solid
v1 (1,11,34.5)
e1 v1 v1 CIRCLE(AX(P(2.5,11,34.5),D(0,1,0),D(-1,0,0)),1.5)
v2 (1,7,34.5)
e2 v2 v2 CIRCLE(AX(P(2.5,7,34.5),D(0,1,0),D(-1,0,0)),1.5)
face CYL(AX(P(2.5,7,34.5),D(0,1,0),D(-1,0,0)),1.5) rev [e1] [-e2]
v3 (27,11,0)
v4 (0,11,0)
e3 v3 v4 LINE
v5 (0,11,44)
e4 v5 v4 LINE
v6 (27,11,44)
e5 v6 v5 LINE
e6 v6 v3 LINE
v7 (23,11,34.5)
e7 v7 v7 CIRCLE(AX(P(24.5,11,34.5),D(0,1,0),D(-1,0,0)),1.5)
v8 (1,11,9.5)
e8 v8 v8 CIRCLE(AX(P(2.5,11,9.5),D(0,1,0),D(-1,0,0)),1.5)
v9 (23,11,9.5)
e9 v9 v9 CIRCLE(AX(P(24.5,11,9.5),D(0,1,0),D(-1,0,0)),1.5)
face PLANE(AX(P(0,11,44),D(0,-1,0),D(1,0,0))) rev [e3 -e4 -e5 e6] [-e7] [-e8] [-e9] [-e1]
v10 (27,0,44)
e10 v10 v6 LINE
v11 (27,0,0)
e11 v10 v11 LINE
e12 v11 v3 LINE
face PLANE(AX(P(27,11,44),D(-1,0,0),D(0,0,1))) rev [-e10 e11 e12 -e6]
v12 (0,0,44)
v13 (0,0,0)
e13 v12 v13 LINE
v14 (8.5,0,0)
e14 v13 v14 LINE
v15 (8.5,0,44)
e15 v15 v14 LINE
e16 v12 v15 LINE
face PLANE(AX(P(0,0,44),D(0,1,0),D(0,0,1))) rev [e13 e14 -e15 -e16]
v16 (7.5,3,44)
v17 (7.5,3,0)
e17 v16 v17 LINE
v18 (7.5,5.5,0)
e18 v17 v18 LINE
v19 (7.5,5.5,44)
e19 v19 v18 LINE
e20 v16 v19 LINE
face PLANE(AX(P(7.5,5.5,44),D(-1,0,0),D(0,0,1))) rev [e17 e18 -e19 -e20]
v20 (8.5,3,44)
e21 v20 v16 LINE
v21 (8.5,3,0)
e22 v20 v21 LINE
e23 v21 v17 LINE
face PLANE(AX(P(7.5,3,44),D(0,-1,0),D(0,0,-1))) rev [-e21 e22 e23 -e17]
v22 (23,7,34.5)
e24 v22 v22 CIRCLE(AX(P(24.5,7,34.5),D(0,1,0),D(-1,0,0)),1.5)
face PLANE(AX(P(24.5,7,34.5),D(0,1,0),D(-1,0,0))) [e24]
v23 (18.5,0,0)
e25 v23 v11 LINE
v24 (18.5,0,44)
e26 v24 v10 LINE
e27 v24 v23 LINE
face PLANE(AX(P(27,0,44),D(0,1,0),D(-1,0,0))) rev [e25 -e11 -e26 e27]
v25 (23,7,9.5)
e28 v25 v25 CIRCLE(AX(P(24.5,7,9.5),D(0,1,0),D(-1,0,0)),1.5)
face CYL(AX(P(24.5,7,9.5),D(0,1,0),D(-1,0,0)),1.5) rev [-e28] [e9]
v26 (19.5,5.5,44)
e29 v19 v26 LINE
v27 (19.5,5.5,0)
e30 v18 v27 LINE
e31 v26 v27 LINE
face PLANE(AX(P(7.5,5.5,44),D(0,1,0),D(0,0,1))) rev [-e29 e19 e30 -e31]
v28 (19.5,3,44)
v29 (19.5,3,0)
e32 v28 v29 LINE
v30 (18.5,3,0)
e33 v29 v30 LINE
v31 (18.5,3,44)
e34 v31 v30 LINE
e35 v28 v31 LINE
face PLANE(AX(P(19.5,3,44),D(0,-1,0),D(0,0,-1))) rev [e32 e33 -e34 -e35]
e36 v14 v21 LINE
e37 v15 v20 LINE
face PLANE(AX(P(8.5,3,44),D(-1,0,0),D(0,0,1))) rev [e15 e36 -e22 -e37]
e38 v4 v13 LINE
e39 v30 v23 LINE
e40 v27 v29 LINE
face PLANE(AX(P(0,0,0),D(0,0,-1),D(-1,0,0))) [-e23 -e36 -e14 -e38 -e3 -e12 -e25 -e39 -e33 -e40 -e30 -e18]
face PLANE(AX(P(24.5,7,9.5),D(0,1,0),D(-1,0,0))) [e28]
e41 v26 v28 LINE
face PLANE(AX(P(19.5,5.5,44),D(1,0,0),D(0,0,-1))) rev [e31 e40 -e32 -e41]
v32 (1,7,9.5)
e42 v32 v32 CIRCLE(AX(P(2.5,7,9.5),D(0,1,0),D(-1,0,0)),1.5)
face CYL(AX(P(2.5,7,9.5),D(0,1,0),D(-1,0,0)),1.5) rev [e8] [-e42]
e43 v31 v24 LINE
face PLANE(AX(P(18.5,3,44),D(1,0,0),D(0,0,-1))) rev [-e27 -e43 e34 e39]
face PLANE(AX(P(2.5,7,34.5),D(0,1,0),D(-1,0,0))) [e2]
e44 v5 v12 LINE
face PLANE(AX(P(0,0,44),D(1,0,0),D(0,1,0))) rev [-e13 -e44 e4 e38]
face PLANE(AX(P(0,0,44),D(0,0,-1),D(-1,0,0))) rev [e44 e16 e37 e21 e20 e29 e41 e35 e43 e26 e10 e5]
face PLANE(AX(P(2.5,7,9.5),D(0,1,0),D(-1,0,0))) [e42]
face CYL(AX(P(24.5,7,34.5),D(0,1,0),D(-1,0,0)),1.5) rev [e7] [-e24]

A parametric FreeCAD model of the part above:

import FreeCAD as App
import Part
import Sketcher
from FreeCAD import Vector

doc = App.newDocument("Part")
body = doc.addObject("PartDesign::Body", "Body")

# Sketch on XY plane
sketch1 = body.newObject("Sketcher::SketchObject", "Sketch")
sketch1.AttachmentSupport = (doc.getObject("XY_Plane"), [""])
sketch1.MapMode = "FlatFace"
sketch1.addGeometry(Part.LineSegment(Vector(19.5, 5.5, 0), Vector(19.5, 3, 0)), False)
sketch1.addGeometry(Part.LineSegment(Vector(19.5, 3, 0), Vector(18.5, 3, 0)), False)
sketch1.addGeometry(Part.LineSegment(Vector(18.5, 3, 0), Vector(18.5, 0, 0)), False)
sketch1.addGeometry(Part.LineSegment(Vector(18.5, 0, 0), Vector(27, 0, 0)), False)
sketch1.addGeometry(Part.LineSegment(Vector(27, 0, 0), Vector(27, 11, 0)), False)
sketch1.addGeometry(Part.LineSegment(Vector(27, 11, 0), Vector(0, 11, 0)), False)
sketch1.addGeometry(Part.LineSegment(Vector(0, 11, 0), Vector(0, 0, 0)), False)
sketch1.addGeometry(Part.LineSegment(Vector(0, 0, 0), Vector(8.5, 0, 0)), False)
sketch1.addGeometry(Part.LineSegment(Vector(8.5, 0, 0), Vector(8.5, 3, 0)), False)
sketch1.addGeometry(Part.LineSegment(Vector(8.5, 3, 0), Vector(7.5, 3, 0)), False)
sketch1.addGeometry(Part.LineSegment(Vector(7.5, 3, 0), Vector(7.5, 5.5, 0)), False)
sketch1.addGeometry(Part.LineSegment(Vector(7.5, 5.5, 0), Vector(19.5, 5.5, 0)), False)
sketch1.addConstraint(Sketcher.Constraint("Coincident", 0, 2, 1, 1))
sketch1.addConstraint(Sketcher.Constraint("Coincident", 1, 2, 2, 1))
sketch1.addConstraint(Sketcher.Constraint("Coincident", 2, 2, 3, 1))
sketch1.addConstraint(Sketcher.Constraint("Coincident", 3, 2, 4, 1))
sketch1.addConstraint(Sketcher.Constraint("Coincident", 4, 2, 5, 1))
sketch1.addConstraint(Sketcher.Constraint("Coincident", 5, 2, 6, 1))
sketch1.addConstraint(Sketcher.Constraint("Coincident", 6, 2, 7, 1))
sketch1.addConstraint(Sketcher.Constraint("Coincident", 7, 2, 8, 1))
sketch1.addConstraint(Sketcher.Constraint("Coincident", 8, 2, 9, 1))
sketch1.addConstraint(Sketcher.Constraint("Coincident", 9, 2, 10, 1))
sketch1.addConstraint(Sketcher.Constraint("Coincident", 10, 2, 11, 1))
sketch1.addConstraint(Sketcher.Constraint("Coincident", 11, 2, 0, 1))
sketch1.addConstraint(Sketcher.Constraint("Vertical", 0))
sketch1.addConstraint(Sketcher.Constraint("Horizontal", 1))
sketch1.addConstraint(Sketcher.Constraint("Vertical", 2))
sketch1.addConstraint(Sketcher.Constraint("Horizontal", 3))
sketch1.addConstraint(Sketcher.Constraint("Vertical", 4))
sketch1.addConstraint(Sketcher.Constraint("Horizontal", 5))
sketch1.addConstraint(Sketcher.Constraint("Vertical", 6))
sketch1.addConstraint(Sketcher.Constraint("Horizontal", 7))
sketch1.addConstraint(Sketcher.Constraint("Vertical", 8))
sketch1.addConstraint(Sketcher.Constraint("Horizontal", 9))
sketch1.addConstraint(Sketcher.Constraint("Vertical", 10))
sketch1.addConstraint(Sketcher.Constraint("Horizontal", 11))
sketch1.addConstraint(Sketcher.Constraint("Coincident", 6, 2, -1, 1))
sketch1.addConstraint(Sketcher.Constraint("PointOnObject", 2, 2, -1))
sketch1.addConstraint(Sketcher.Constraint("Horizontal", 1, 2, 8, 2))
sketch1.addConstraint(Sketcher.Constraint("Equal", 3, 7))
sketch1.addConstraint(Sketcher.Constraint("Equal", 1, 9))
sketch1.addConstraint(Sketcher.Constraint("DistanceX", 1, 2, 1, 1, 1.0))
sketch1.addConstraint(Sketcher.Constraint("DistanceX", 5, 2, 5, 1, 27.0))
sketch1.addConstraint(Sketcher.Constraint("DistanceX", 11, 1, 11, 2, 12.0))
sketch1.addConstraint(Sketcher.Constraint("DistanceY", 2, 2, 2, 1, 3.0))
sketch1.addConstraint(Sketcher.Constraint("DistanceY", 4, 1, 4, 2, 11.0))
sketch1.addConstraint(Sketcher.Constraint("DistanceY", 0, 2, 0, 1, 2.5))
pad1 = body.newObject("PartDesign::Pad", "Pad")
pad1.Profile = sketch1
pad1.Length = 44

# Sketch on XZ plane
sketch2 = body.newObject("Sketcher::SketchObject", "Sketch001")
sketch2.AttachmentSupport = (doc.getObject("XZ_Plane"), [""])
sketch2.MapMode = "FlatFace"
sketch2.AttachmentOffset = App.Placement(Vector(0, 0, -11), App.Rotation())
sketch2.addGeometry(Part.Circle(Vector(2.5, 9.5, 0), Vector(0, 0, 1), 1.5), False)
sketch2.addGeometry(Part.Circle(Vector(24.5, 9.5, 0), Vector(0, 0, 1), 1.5), False)
sketch2.addGeometry(Part.Circle(Vector(24.5, 34.5, 0), Vector(0, 0, 1), 1.5), False)
sketch2.addGeometry(Part.Circle(Vector(2.5, 34.5, 0), Vector(0, 0, 1), 1.5), False)
sketch2.addConstraint(Sketcher.Constraint("Equal", 0, 1))
sketch2.addConstraint(Sketcher.Constraint("Equal", 1, 2))
sketch2.addConstraint(Sketcher.Constraint("Equal", 2, 3))
sketch2.addConstraint(Sketcher.Constraint("Horizontal", 0, 3, 1, 3))
sketch2.addConstraint(Sketcher.Constraint("Horizontal", 2, 3, 3, 3))
sketch2.addConstraint(Sketcher.Constraint("Vertical", 1, 3, 2, 3))
sketch2.addConstraint(Sketcher.Constraint("Vertical", 0, 3, 3, 3))
sketch2.addConstraint(Sketcher.Constraint("Diameter", 0, 3.0))
sketch2.addConstraint(Sketcher.Constraint("DistanceX", 0, 3, 1, 3, 22.0))
sketch2.addConstraint(Sketcher.Constraint("DistanceY", 1, 3, 2, 3, 25.0))
sketch2.addConstraint(Sketcher.Constraint("DistanceX", -1, 1, 0, 3, 2.5))
sketch2.addConstraint(Sketcher.Constraint("DistanceY", -1, 1, 0, 3, 9.5))
pocket1 = body.newObject("PartDesign::Pocket", "Pocket")
pocket1.Profile = sketch2
pocket1.Length = 4
pocket1.Reversed = True

doc.recompute()
